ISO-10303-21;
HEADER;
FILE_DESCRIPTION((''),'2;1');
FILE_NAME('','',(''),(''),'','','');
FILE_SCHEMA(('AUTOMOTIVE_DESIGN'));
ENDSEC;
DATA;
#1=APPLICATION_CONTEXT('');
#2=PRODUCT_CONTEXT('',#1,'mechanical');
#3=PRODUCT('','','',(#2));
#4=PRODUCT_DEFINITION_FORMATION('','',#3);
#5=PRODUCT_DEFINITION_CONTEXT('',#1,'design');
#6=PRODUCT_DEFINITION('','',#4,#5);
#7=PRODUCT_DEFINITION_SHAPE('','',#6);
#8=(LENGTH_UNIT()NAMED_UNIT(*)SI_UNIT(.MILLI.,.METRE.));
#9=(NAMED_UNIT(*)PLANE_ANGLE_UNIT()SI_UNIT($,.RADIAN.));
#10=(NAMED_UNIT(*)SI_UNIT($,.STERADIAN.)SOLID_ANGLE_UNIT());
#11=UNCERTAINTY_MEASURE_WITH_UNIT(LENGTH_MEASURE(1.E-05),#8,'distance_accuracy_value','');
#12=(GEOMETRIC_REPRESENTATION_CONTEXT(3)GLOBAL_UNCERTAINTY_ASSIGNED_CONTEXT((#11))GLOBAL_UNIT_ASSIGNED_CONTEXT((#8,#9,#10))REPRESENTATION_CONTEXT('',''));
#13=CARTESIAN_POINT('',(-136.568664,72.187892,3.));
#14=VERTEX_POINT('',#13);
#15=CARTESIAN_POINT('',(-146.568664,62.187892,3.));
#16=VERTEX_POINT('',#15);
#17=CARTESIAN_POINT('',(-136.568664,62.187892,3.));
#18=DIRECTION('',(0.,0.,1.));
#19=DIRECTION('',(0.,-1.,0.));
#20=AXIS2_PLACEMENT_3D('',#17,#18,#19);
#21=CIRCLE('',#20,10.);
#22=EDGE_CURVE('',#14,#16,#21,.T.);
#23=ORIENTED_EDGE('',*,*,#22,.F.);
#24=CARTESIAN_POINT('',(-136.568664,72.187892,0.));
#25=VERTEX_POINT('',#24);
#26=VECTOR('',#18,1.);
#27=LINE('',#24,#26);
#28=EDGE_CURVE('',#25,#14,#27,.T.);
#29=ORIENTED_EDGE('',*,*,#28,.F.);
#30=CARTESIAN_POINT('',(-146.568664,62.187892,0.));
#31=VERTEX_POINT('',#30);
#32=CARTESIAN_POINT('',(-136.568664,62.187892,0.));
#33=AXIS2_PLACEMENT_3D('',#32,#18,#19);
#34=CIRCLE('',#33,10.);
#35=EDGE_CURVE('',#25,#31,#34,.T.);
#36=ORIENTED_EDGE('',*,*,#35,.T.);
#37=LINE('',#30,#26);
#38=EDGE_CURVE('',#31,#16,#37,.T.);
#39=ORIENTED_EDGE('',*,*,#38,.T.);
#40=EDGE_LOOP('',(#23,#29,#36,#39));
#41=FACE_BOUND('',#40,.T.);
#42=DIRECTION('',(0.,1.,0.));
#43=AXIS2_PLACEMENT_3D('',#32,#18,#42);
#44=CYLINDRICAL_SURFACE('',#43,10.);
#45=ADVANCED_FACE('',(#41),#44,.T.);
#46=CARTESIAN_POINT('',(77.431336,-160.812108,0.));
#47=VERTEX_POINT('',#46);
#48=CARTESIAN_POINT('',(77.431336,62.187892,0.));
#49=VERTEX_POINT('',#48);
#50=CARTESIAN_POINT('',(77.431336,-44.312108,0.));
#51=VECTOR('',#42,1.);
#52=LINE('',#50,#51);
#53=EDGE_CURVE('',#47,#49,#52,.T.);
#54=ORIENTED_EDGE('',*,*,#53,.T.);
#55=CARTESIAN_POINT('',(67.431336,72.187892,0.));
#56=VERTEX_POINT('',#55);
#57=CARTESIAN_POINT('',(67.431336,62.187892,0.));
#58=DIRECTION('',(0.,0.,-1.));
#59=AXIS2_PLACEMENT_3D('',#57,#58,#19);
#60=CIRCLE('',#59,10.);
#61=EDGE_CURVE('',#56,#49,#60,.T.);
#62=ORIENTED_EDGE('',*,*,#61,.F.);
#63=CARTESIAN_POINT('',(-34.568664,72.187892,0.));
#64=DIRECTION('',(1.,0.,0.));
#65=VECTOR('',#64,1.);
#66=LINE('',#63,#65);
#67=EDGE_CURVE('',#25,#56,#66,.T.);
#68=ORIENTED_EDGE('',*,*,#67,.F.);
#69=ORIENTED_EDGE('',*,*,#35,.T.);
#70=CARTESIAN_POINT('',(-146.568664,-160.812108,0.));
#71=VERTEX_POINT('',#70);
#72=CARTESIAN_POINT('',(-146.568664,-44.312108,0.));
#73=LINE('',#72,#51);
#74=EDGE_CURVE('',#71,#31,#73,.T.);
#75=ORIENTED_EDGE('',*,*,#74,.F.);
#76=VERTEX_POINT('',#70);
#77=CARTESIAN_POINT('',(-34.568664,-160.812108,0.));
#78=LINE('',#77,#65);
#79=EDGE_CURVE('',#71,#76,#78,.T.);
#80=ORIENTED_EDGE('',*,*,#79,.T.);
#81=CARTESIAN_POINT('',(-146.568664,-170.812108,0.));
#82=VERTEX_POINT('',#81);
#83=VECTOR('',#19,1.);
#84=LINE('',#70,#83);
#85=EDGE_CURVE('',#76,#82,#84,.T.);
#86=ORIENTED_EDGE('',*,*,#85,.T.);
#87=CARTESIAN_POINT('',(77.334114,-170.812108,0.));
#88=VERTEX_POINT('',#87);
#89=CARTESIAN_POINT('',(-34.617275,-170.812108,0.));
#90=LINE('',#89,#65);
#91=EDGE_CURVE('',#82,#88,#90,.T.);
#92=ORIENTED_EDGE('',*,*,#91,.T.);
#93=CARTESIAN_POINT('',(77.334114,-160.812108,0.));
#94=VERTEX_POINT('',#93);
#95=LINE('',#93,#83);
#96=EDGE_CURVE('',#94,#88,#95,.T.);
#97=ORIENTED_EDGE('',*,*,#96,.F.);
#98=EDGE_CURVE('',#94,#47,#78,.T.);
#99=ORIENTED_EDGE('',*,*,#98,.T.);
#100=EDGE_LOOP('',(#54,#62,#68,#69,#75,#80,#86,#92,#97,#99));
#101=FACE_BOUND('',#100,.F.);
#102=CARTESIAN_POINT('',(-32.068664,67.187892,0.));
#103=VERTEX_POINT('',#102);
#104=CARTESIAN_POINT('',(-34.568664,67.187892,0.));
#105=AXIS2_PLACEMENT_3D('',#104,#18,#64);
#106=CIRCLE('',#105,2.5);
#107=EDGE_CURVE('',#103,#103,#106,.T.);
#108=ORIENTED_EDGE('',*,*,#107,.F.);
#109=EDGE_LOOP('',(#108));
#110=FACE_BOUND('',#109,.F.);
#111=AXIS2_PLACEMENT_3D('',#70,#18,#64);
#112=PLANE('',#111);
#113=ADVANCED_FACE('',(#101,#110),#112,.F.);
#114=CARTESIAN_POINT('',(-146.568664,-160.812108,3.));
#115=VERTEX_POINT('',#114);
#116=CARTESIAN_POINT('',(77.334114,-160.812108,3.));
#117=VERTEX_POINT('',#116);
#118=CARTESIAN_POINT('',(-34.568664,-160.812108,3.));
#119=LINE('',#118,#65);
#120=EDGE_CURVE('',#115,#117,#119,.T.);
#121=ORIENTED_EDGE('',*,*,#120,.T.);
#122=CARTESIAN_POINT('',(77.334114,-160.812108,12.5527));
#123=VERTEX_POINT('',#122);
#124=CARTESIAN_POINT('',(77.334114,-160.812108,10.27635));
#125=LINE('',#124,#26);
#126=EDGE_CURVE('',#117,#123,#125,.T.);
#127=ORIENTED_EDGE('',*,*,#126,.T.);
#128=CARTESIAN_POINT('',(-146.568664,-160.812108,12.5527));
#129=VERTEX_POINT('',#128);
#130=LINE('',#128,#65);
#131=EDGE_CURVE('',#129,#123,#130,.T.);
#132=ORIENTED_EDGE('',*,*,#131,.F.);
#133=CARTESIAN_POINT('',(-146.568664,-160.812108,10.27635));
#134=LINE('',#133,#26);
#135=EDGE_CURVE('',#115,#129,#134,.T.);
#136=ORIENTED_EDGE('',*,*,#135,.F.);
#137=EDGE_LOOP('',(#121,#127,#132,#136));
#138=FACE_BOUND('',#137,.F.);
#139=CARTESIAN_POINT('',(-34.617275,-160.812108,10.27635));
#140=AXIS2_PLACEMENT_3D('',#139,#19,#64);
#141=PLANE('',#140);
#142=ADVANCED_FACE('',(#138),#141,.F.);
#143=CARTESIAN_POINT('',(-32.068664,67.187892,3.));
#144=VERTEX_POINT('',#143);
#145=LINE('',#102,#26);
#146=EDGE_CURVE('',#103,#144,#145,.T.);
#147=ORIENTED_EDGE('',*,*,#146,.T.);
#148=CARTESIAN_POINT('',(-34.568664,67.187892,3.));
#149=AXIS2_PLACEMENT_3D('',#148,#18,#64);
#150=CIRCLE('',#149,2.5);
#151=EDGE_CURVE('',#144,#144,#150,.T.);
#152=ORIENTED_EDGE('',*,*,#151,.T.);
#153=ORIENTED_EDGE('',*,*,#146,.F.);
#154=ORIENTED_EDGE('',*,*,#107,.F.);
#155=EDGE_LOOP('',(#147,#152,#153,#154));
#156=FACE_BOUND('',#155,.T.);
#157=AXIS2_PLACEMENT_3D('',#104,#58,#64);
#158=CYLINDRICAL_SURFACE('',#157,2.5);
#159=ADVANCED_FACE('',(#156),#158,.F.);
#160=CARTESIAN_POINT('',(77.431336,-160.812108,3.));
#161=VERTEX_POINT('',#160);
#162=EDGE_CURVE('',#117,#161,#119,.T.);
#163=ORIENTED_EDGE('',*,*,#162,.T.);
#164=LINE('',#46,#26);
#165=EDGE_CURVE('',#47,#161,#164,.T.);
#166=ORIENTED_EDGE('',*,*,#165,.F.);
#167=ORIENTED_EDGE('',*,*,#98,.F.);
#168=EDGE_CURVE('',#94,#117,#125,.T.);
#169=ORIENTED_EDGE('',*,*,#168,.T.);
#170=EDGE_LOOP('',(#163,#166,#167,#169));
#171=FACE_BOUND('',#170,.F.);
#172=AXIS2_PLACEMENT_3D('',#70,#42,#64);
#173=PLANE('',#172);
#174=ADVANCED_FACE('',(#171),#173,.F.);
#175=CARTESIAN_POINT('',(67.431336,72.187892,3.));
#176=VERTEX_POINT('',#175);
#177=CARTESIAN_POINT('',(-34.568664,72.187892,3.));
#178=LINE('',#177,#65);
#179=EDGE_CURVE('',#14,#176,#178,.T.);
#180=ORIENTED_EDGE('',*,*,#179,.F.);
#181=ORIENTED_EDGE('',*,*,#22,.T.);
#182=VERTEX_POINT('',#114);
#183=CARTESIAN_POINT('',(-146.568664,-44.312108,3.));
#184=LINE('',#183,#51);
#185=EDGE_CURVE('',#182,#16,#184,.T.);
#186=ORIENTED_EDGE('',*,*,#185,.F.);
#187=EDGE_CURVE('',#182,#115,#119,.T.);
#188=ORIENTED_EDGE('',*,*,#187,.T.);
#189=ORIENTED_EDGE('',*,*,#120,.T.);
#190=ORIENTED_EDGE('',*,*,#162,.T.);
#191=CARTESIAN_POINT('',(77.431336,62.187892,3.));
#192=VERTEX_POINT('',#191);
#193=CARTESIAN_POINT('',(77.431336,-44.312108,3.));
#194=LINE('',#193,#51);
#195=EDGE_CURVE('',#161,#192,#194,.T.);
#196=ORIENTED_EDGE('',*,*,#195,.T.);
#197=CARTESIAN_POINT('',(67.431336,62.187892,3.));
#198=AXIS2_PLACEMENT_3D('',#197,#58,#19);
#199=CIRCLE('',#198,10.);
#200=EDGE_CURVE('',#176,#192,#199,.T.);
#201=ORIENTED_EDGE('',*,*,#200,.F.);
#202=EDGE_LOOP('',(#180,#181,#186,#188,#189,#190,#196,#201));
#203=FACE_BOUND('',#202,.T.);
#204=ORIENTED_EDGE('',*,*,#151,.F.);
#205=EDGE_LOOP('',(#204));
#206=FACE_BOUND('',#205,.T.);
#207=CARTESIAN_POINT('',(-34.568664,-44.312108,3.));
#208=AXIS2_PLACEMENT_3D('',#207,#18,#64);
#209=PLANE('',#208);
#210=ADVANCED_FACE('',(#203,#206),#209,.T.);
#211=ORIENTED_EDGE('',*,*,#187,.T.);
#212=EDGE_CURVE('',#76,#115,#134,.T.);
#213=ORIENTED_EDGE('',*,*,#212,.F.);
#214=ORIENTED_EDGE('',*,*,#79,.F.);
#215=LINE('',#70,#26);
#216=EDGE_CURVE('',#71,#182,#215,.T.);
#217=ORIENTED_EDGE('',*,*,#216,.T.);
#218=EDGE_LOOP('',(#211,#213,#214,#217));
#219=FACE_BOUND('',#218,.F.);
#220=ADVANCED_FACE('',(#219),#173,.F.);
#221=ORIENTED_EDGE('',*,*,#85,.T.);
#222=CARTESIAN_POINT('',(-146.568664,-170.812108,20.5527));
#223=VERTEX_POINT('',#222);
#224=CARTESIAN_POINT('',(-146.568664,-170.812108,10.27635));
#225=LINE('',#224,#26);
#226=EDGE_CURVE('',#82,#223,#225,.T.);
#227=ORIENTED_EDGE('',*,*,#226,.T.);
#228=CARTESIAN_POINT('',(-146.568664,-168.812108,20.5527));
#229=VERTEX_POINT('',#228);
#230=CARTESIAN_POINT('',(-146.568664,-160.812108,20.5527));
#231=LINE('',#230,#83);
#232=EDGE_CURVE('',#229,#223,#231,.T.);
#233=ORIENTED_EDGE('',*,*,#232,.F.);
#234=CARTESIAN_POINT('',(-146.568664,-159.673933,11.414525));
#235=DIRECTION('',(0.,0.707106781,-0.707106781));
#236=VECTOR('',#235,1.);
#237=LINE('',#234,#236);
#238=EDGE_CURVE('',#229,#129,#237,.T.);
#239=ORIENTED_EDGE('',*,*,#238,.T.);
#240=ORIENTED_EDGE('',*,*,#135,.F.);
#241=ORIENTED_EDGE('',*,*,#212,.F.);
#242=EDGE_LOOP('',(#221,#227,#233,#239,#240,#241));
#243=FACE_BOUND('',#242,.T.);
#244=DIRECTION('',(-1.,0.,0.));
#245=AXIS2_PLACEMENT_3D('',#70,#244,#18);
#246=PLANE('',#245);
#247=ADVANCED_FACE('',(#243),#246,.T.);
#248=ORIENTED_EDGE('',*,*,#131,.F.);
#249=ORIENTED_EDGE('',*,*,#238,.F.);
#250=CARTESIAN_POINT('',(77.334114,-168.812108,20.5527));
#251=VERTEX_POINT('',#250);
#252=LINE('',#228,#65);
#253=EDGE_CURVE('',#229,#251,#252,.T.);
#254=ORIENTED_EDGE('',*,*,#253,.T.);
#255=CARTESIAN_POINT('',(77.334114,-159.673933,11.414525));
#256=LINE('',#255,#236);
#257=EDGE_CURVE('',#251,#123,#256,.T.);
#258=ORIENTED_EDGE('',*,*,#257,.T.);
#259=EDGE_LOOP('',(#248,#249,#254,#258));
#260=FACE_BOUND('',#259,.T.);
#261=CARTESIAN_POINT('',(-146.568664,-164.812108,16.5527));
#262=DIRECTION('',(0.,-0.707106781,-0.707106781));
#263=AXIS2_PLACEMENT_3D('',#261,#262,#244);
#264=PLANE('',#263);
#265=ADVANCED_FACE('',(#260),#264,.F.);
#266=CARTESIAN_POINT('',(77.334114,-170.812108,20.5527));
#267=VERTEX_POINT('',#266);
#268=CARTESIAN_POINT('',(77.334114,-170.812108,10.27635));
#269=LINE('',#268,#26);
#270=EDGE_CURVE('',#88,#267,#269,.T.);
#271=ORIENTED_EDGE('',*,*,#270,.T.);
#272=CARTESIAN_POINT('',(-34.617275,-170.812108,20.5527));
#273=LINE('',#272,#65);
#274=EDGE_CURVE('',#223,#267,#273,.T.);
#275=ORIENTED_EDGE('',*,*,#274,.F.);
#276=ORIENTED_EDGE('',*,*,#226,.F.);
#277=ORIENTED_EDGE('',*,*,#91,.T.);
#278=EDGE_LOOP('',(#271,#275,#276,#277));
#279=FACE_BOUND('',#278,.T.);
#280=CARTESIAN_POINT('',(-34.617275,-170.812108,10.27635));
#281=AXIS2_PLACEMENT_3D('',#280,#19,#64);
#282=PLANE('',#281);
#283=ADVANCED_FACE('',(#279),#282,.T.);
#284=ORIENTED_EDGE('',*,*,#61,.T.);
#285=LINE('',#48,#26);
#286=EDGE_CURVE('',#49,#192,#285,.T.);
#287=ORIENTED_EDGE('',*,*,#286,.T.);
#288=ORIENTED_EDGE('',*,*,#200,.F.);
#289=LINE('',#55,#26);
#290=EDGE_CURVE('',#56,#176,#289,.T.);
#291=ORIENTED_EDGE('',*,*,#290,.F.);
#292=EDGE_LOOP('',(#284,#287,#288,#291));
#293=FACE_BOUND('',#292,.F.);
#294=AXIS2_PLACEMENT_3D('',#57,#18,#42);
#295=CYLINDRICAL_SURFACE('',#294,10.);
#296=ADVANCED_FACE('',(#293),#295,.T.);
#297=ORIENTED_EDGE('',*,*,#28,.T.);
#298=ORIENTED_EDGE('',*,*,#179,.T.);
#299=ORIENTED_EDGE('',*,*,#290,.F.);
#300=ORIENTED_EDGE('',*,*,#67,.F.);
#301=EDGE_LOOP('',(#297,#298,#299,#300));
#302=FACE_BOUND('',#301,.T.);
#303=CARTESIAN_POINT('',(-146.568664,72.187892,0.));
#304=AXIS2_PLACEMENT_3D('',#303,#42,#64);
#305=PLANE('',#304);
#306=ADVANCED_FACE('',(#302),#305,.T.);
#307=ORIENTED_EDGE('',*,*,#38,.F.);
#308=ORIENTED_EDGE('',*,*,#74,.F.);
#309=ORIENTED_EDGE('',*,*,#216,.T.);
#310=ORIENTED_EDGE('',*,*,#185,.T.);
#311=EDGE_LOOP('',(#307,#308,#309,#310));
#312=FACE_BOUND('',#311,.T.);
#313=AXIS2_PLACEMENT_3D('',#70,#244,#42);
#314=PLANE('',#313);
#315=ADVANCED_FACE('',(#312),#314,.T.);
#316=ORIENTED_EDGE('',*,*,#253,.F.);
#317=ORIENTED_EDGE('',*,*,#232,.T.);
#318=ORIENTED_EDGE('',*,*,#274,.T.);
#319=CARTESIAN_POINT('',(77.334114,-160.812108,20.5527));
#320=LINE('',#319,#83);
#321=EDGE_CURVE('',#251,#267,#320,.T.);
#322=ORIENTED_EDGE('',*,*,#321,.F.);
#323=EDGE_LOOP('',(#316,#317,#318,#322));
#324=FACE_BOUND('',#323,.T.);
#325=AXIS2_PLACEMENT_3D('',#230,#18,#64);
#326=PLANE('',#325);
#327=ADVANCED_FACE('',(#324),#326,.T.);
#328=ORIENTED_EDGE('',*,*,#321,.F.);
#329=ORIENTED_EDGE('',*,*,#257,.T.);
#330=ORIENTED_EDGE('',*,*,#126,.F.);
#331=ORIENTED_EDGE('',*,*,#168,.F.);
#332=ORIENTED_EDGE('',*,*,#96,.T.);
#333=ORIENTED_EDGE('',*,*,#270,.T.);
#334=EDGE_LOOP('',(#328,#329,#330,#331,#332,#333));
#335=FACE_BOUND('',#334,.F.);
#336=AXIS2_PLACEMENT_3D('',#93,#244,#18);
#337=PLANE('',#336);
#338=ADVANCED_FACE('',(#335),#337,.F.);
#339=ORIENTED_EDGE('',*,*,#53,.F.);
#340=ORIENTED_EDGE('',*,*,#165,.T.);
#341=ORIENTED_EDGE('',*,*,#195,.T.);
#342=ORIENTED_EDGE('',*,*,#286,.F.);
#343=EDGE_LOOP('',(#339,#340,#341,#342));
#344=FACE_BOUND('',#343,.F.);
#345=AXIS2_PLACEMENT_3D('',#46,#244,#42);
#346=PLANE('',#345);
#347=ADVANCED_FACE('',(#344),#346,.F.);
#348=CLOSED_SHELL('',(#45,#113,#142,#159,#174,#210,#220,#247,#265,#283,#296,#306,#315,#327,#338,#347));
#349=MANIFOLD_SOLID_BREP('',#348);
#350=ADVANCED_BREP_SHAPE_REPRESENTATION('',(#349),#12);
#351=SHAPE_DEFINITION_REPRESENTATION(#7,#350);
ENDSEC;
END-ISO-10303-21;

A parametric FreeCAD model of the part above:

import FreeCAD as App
import Part
import Sketcher


def edges_at(feature, points):
    """Names of the edges that pass closest to the given points."""
    edges = feature.Shape.Edges
    near = lambda p: min(range(len(edges)), key=lambda i: edges[i].distToShape(Part.Vertex(*p))[0])
    return sorted({f"Edge{near(p) + 1}" for p in points})

doc = App.newDocument("Part")
params = doc.addObject("Spreadsheet::Sheet", "Params")
for row, (alias, value) in enumerate([
    ("sketch1_diameter", "5 mm"),
    ("sketch1_width", "224 mm"),
    ("sketch1_height", "233 mm"),
    ("pad1_length", "3 mm"),
    ("pad2_length", "10 mm"),
    ("chamfer_size", "8 mm"),
    ("fillet_radius", "10 mm"),
    ("fillet2_radius", "10 mm"),
], start=1):
    params.set(f"A{row}", alias)
    params.set(f"B{row}", "=" + value)
    params.setAlias(f"B{row}", alias)

body = doc.addObject("PartDesign::Body", "Body")

sketch1 = doc.addObject("Sketcher::SketchObject", "Sketch")
body.addObject(sketch1)
sketch1.AttachmentSupport = (doc.XY_Plane, [""])
sketch1.MapMode = "FlatFace"
sketch1.addGeometry(Part.LineSegment(App.Vector(-146.6, 72.2, 0), App.Vector(-146.6, -160.8, 0)), False)
sketch1.addGeometry(Part.LineSegment(App.Vector(-146.6, -160.8, 0), App.Vector(77.4, -160.8, 0)), False)
sketch1.addGeometry(Part.LineSegment(App.Vector(77.4, -160.8, 0), App.Vector(77.4, 72.2, 0)), False)
sketch1.addGeometry(Part.LineSegment(App.Vector(77.4, 72.2, 0), App.Vector(-146.6, 72.2, 0)), False)
sketch1.addGeometry(Part.Circle(App.Vector(-34.6, 67.2, 0), App.Vector(0, 0, 1), 2.5), False)
sketch1.addConstraint(Sketcher.Constraint("Coincident", 0, 2, 1, 1))
sketch1.addConstraint(Sketcher.Constraint("Coincident", 1, 2, 2, 1))
sketch1.addConstraint(Sketcher.Constraint("Coincident", 2, 2, 3, 1))
sketch1.addConstraint(Sketcher.Constraint("Coincident", 3, 2, 0, 1))
sketch1.addConstraint(Sketcher.Constraint("Vertical", 0))
sketch1.addConstraint(Sketcher.Constraint("Horizontal", 1))
sketch1.addConstraint(Sketcher.Constraint("Vertical", 2))
sketch1.addConstraint(Sketcher.Constraint("Horizontal", 3))
sketch1.addConstraint(Sketcher.Constraint("Diameter", 4, 5.0))
sketch1.addConstraint(Sketcher.Constraint("DistanceX", 1, 1, 1, 2, 224.0))
sketch1.addConstraint(Sketcher.Constraint("DistanceY", 0, 2, 0, 1, 233.0))
sketch1.addConstraint(Sketcher.Constraint("DistanceX", 0, 2, 4, 3, 112.0))
sketch1.addConstraint(Sketcher.Constraint("DistanceY", 0, 2, 4, 3, 228.0))
sketch1.addConstraint(Sketcher.Constraint("DistanceY", 0, 2, -1, 1, 160.812108))
sketch1.addConstraint(Sketcher.Constraint("DistanceX", 4, 3, -1, 1, 34.568664))
sketch1.setExpression("Constraints[8]", "Params.sketch1_diameter")
sketch1.setExpression("Constraints[9]", "Params.sketch1_width")
sketch1.setExpression("Constraints[10]", "Params.sketch1_height")
pad1 = doc.addObject("PartDesign::Pad", "Pad")
body.addObject(pad1)
pad1.Profile = sketch1
pad1.setExpression("Length", "Params.pad1_length")

sketch2 = doc.addObject("Sketcher::SketchObject", "Sketch001")
body.addObject(sketch2)
sketch2.AttachmentSupport = (doc.XZ_Plane, [""])
sketch2.MapMode = "FlatFace"
sketch2.AttachmentOffset = App.Placement(App.Vector(0, 0, 160.812108), App.Rotation())
sketch2.addGeometry(Part.LineSegment(App.Vector(-147, 21, 0), App.Vector(-147, 0, 0)), False)
sketch2.addGeometry(Part.LineSegment(App.Vector(-147, 0, 0), App.Vector(77, 0, 0)), False)
sketch2.addGeometry(Part.LineSegment(App.Vector(77, 0, 0), App.Vector(77, 21, 0)), False)
sketch2.addGeometry(Part.LineSegment(App.Vector(77, 21, 0), App.Vector(-147, 21, 0)), False)
sketch2.addConstraint(Sketcher.Constraint("Coincident", 0, 2, 1, 1))
sketch2.addConstraint(Sketcher.Constraint("Coincident", 1, 2, 2, 1))
sketch2.addConstraint(Sketcher.Constraint("Coincident", 2, 2, 3, 1))
sketch2.addConstraint(Sketcher.Constraint("Coincident", 3, 2, 0, 1))
sketch2.addConstraint(Sketcher.Constraint("Vertical", 0))
sketch2.addConstraint(Sketcher.Constraint("Horizontal", 1))
sketch2.addConstraint(Sketcher.Constraint("Vertical", 2))
sketch2.addConstraint(Sketcher.Constraint("Horizontal", 3))
sketch2.addConstraint(Sketcher.Constraint("PointOnObject", 0, 2, -1))
sketch2.addConstraint(Sketcher.Constraint("DistanceY", 0, 2, 0, 1, 20.5527))
sketch2.addConstraint(Sketcher.Constraint("DistanceX", 1, 1, 1, 2, 223.902777))
sketch2.addConstraint(Sketcher.Constraint("DistanceX", 0, 2, -1, 1, 146.568664))
pad2 = doc.addObject("PartDesign::Pad", "Pad001")
body.addObject(pad2)
pad2.Profile = sketch2
pad2.setExpression("Length", "Params.pad2_length")
doc.recompute()

chamfer = doc.addObject("PartDesign::Chamfer", "Chamfer")
body.addObject(chamfer)
chamfer.Base = (pad2, edges_at(pad2, [(-34.617, -160.812, 20.553)]))
chamfer.setExpression("Size", "Params.chamfer_size")
doc.recompute()

fillet = doc.addObject("PartDesign::Fillet", "Fillet")
body.addObject(fillet)
fillet.Base = (chamfer, edges_at(chamfer, [(-146.569, 72.188, 1.5)]))
fillet.setExpression("Radius", "Params.fillet_radius")
doc.recompute()

fillet2 = doc.addObject("PartDesign::Fillet", "Fillet001")
body.addObject(fillet2)
fillet2.Base = (fillet, edges_at(fillet, [(77.431, 72.188, 1.5)]))
fillet2.setExpression("Radius", "Params.fillet2_radius")

doc.recompute()
